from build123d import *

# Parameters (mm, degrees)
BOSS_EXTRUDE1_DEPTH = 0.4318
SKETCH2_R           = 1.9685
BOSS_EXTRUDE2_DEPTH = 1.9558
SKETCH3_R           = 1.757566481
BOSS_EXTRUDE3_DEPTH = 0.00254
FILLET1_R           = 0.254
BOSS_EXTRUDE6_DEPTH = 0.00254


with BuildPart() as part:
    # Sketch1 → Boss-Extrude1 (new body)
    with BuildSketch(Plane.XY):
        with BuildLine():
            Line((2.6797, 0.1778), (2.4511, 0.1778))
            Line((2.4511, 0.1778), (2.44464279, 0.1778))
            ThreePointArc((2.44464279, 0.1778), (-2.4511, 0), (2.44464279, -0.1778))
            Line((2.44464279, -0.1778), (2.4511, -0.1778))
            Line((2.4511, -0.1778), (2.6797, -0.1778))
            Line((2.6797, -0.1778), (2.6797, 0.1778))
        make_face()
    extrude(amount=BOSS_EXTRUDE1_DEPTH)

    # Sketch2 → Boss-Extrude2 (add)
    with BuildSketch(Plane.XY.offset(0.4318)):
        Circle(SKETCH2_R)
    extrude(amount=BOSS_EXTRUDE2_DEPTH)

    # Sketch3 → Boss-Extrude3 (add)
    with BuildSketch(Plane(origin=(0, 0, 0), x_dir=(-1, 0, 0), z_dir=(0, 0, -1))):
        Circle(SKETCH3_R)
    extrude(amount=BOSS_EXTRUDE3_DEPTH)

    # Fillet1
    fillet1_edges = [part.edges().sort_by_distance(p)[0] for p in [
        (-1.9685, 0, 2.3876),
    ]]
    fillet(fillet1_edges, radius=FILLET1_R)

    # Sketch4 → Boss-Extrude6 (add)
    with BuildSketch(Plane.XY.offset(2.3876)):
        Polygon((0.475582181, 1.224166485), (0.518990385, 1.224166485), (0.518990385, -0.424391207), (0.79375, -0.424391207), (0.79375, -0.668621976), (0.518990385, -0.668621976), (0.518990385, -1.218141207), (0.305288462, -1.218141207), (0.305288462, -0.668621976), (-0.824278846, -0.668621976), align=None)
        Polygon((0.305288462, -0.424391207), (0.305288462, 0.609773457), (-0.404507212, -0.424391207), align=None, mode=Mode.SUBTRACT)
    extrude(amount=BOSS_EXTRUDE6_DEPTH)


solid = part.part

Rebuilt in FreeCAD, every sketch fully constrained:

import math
import FreeCAD as App
import Part
import Sketcher
Q = App.Units.Quantity


def edges_at(feature, points):
    """Names of the edges that pass closest to the given points."""
    edges = feature.Shape.Edges
    near = lambda p: min(range(len(edges)), key=lambda i: edges[i].distToShape(Part.Vertex(*p))[0])
    return sorted({f"Edge{near(p) + 1}" for p in points})


def add_polygon(sketch, points):
    """Adds a closed chain of lines whose ends are joined by coincident constraints."""
    first, n = sketch.GeometryCount, len(points)
    for a, b in zip(points, points[1:] + points[:1]):
        sketch.addGeometry(Part.LineSegment(App.Vector(*a, 0), App.Vector(*b, 0)), False)
    for i in range(n):
        sketch.addConstraint(Sketcher.Constraint("Coincident", first + i, 2, first + (i + 1) % n, 1))

doc = App.newDocument("Part")
params = doc.addObject("Spreadsheet::Sheet", "Params")
for row, (alias, value) in enumerate([
    ("sketch1_height", "0.014 in"),
    ("pad1_length", "0.017 in"),
    ("sketch2_diameter", "0.155 in"),
    ("pad2_length", "0.077 in"),
    ("pad3_length", "0.0001 in"),
    ("fillet_radius", "0.01 in"),
    ("pad4_length", "0.0001 in"),
], start=1):
    params.set(f"A{row}", alias)
    params.set(f"B{row}", "=" + value)
    params.setAlias(f"B{row}", alias)

body = doc.addObject("PartDesign::Body", "Body")

# Sketch on XY plane
sketch1 = body.newObject("Sketcher::SketchObject", "Sketch")
sketch1.AttachmentSupport = (doc.getObject("XY_Plane"), [""])
sketch1.MapMode = "FlatFace"
sketch1.addGeometry([
    Part.LineSegment(App.Vector(2.68, 0.18, 0), App.Vector(2.44, 0.18, 0)),
    Part.ArcOfCircle(Part.Circle(App.Vector(0, 0, 0), App.Vector(0, 0, 1), 2.45), math.radians(4), math.radians(356)),
    Part.LineSegment(App.Vector(2.44, -0.18, 0), App.Vector(2.68, -0.18, 0)),
    Part.LineSegment(App.Vector(2.68, -0.18, 0), App.Vector(2.68, 0.18, 0)),
], False)
sketch1.addConstraint([
    Sketcher.Constraint("Coincident", 0, 2, 1, 1),
    Sketcher.Constraint("Coincident", 1, 2, 2, 1),
    Sketcher.Constraint("Coincident", 2, 2, 3, 1),
    Sketcher.Constraint("Coincident", 3, 2, 0, 1),
    Sketcher.Constraint("Horizontal", 0),
    Sketcher.Constraint("Horizontal", 2),
    Sketcher.Constraint("Vertical", 3),
    Sketcher.Constraint("Coincident", 1, 3, -1, 1),
    Sketcher.Constraint("Vertical", 0, 2, 1, 2),
    Sketcher.Constraint("Radius", 1, Q("0.0965 in")),
    Sketcher.Constraint("DistanceY", 3, 1, 3, 2, Q("0.014 in")),
    Sketcher.Constraint("DistanceX", -1, 1, 2, 2, Q("0.1055 in")),
])
sketch1.setExpression("Constraints[10]", "Params.sketch1_height")
pad1 = body.newObject("PartDesign::Pad", "Pad")
pad1.Profile = sketch1
pad1.setExpression("Length", "Params.pad1_length")

# Sketch on XY plane
sketch2 = body.newObject("Sketcher::SketchObject", "Sketch001")
sketch2.AttachmentSupport = (doc.getObject("XY_Plane"), [""])
sketch2.MapMode = "FlatFace"
sketch2.AttachmentOffset = App.Placement(App.Vector(0, 0, 0.017 * 25.4), App.Rotation())
sketch2.addGeometry(Part.Circle(App.Vector(0, 0, 0), App.Vector(0, 0, 1), 2), False)
sketch2.addConstraint([
    Sketcher.Constraint("Coincident", 0, 3, -1, 1),
    Sketcher.Constraint("Diameter", 0, Q("0.155 in")),
])
sketch2.setExpression("Constraints[1]", "Params.sketch2_diameter")
pad2 = body.newObject("PartDesign::Pad", "Pad001")
pad2.Profile = sketch2
pad2.setExpression("Length", "Params.pad2_length")

# Sketch on XY plane
sketch3 = body.newObject("Sketcher::SketchObject", "Sketch002")
sketch3.AttachmentSupport = (doc.getObject("XY_Plane"), [""])
sketch3.MapMode = "FlatFace"
sketch3.addGeometry(Part.Circle(App.Vector(0, 0, 0), App.Vector(0, 0, 1), 1.8), False)
sketch3.addConstraint([
    Sketcher.Constraint("Coincident", 0, 3, -1, 1),
    Sketcher.Constraint("Diameter", 0, Q("3.515133 mm")),
])
pad3 = body.newObject("PartDesign::Pad", "Pad002")
pad3.Profile = sketch3
pad3.setExpression("Length", "Params.pad3_length")
pad3.Reversed = True
doc.recompute()

fillet = body.newObject("PartDesign::Fillet", "Fillet")
fillet.Base = (pad3, edges_at(pad3, [(-1.968, 0, 2.388)]))
fillet.setExpression("Radius", "Params.fillet_radius")

# Sketch on XY plane
sketch4 = body.newObject("Sketcher::SketchObject", "Sketch003")
sketch4.AttachmentSupport = (doc.getObject("XY_Plane"), [""])
sketch4.MapMode = "FlatFace"
sketch4.AttachmentOffset = App.Placement(App.Vector(0, 0, 0.094 * 25.4), App.Rotation())
add_polygon(sketch4, [(0.519, 1.224), (0.476, 1.224), (-0.824, -0.669), (0.305, -0.669), (0.305, -1.218), (0.519, -1.218), (0.519, -0.669), (0.794, -0.669), (0.794, -0.424), (0.519, -0.424)])  # lines 0-9
add_polygon(sketch4, [(0.305, -0.424), (-0.405, -0.424), (0.305, 0.61)])  # lines 10-12
sketch4.addConstraint([
    Sketcher.Constraint("Horizontal", 0),
    Sketcher.Constraint("Horizontal", 2),
    Sketcher.Constraint("Vertical", 3),
    Sketcher.Constraint("Horizontal", 4),
    Sketcher.Constraint("Vertical", 5),
    Sketcher.Constraint("Horizontal", 6),
    Sketcher.Constraint("Vertical", 7),
    Sketcher.Constraint("Horizontal", 8),
    Sketcher.Constraint("Vertical", 9),
    Sketcher.Constraint("Horizontal", 10),
    Sketcher.Constraint("Vertical", 12),
    Sketcher.Constraint("Horizontal", 2, 2, 5, 2),
    Sketcher.Constraint("Horizontal", 8, 2, 10, 2),
    Sketcher.Constraint("Vertical", 5, 2, 8, 2),
    Sketcher.Constraint("Vertical", 3, 2, 11, 2),
    Sketcher.Constraint("DistanceX", -1, 1, 6, 2, Q("0.03125 in")),
    Sketcher.Constraint("DistanceY", 4, 2, 7, 2, Q("0.03125 in")),
    Sketcher.Constraint("DistanceX", 4, 1, 4, 2, Q("0.213702 mm")),
    Sketcher.Constraint("DistanceX", 0, 2, 0, 1, Q("0.043408 mm")),
    Sketcher.Constraint("DistanceX", 6, 1, 6, 2, Q("0.27476 mm")),
    Sketcher.Constraint("DistanceY", 3, 2, 3, 1, Q("0.549519 mm")),
    Sketcher.Constraint("DistanceX", 2, 1, 2, 2, Q("1.129567 mm")),
    Sketcher.Constraint("DistanceX", 10, 2, 10, 1, Q("0.709796 mm")),
    Sketcher.Constraint("DistanceY", 9, 1, 9, 2, Q("1.648558 mm")),
    Sketcher.Constraint("DistanceY", 12, 2, 12, 1, Q("1.034165 mm")),
    Sketcher.Constraint("DistanceY", 1, 2, -1, 1, Q("0.668622 mm")),
])
pad4 = body.newObject("PartDesign::Pad", "Pad003")
pad4.Profile = sketch4
pad4.setExpression("Length", "Params.pad4_length")

doc.recompute()
